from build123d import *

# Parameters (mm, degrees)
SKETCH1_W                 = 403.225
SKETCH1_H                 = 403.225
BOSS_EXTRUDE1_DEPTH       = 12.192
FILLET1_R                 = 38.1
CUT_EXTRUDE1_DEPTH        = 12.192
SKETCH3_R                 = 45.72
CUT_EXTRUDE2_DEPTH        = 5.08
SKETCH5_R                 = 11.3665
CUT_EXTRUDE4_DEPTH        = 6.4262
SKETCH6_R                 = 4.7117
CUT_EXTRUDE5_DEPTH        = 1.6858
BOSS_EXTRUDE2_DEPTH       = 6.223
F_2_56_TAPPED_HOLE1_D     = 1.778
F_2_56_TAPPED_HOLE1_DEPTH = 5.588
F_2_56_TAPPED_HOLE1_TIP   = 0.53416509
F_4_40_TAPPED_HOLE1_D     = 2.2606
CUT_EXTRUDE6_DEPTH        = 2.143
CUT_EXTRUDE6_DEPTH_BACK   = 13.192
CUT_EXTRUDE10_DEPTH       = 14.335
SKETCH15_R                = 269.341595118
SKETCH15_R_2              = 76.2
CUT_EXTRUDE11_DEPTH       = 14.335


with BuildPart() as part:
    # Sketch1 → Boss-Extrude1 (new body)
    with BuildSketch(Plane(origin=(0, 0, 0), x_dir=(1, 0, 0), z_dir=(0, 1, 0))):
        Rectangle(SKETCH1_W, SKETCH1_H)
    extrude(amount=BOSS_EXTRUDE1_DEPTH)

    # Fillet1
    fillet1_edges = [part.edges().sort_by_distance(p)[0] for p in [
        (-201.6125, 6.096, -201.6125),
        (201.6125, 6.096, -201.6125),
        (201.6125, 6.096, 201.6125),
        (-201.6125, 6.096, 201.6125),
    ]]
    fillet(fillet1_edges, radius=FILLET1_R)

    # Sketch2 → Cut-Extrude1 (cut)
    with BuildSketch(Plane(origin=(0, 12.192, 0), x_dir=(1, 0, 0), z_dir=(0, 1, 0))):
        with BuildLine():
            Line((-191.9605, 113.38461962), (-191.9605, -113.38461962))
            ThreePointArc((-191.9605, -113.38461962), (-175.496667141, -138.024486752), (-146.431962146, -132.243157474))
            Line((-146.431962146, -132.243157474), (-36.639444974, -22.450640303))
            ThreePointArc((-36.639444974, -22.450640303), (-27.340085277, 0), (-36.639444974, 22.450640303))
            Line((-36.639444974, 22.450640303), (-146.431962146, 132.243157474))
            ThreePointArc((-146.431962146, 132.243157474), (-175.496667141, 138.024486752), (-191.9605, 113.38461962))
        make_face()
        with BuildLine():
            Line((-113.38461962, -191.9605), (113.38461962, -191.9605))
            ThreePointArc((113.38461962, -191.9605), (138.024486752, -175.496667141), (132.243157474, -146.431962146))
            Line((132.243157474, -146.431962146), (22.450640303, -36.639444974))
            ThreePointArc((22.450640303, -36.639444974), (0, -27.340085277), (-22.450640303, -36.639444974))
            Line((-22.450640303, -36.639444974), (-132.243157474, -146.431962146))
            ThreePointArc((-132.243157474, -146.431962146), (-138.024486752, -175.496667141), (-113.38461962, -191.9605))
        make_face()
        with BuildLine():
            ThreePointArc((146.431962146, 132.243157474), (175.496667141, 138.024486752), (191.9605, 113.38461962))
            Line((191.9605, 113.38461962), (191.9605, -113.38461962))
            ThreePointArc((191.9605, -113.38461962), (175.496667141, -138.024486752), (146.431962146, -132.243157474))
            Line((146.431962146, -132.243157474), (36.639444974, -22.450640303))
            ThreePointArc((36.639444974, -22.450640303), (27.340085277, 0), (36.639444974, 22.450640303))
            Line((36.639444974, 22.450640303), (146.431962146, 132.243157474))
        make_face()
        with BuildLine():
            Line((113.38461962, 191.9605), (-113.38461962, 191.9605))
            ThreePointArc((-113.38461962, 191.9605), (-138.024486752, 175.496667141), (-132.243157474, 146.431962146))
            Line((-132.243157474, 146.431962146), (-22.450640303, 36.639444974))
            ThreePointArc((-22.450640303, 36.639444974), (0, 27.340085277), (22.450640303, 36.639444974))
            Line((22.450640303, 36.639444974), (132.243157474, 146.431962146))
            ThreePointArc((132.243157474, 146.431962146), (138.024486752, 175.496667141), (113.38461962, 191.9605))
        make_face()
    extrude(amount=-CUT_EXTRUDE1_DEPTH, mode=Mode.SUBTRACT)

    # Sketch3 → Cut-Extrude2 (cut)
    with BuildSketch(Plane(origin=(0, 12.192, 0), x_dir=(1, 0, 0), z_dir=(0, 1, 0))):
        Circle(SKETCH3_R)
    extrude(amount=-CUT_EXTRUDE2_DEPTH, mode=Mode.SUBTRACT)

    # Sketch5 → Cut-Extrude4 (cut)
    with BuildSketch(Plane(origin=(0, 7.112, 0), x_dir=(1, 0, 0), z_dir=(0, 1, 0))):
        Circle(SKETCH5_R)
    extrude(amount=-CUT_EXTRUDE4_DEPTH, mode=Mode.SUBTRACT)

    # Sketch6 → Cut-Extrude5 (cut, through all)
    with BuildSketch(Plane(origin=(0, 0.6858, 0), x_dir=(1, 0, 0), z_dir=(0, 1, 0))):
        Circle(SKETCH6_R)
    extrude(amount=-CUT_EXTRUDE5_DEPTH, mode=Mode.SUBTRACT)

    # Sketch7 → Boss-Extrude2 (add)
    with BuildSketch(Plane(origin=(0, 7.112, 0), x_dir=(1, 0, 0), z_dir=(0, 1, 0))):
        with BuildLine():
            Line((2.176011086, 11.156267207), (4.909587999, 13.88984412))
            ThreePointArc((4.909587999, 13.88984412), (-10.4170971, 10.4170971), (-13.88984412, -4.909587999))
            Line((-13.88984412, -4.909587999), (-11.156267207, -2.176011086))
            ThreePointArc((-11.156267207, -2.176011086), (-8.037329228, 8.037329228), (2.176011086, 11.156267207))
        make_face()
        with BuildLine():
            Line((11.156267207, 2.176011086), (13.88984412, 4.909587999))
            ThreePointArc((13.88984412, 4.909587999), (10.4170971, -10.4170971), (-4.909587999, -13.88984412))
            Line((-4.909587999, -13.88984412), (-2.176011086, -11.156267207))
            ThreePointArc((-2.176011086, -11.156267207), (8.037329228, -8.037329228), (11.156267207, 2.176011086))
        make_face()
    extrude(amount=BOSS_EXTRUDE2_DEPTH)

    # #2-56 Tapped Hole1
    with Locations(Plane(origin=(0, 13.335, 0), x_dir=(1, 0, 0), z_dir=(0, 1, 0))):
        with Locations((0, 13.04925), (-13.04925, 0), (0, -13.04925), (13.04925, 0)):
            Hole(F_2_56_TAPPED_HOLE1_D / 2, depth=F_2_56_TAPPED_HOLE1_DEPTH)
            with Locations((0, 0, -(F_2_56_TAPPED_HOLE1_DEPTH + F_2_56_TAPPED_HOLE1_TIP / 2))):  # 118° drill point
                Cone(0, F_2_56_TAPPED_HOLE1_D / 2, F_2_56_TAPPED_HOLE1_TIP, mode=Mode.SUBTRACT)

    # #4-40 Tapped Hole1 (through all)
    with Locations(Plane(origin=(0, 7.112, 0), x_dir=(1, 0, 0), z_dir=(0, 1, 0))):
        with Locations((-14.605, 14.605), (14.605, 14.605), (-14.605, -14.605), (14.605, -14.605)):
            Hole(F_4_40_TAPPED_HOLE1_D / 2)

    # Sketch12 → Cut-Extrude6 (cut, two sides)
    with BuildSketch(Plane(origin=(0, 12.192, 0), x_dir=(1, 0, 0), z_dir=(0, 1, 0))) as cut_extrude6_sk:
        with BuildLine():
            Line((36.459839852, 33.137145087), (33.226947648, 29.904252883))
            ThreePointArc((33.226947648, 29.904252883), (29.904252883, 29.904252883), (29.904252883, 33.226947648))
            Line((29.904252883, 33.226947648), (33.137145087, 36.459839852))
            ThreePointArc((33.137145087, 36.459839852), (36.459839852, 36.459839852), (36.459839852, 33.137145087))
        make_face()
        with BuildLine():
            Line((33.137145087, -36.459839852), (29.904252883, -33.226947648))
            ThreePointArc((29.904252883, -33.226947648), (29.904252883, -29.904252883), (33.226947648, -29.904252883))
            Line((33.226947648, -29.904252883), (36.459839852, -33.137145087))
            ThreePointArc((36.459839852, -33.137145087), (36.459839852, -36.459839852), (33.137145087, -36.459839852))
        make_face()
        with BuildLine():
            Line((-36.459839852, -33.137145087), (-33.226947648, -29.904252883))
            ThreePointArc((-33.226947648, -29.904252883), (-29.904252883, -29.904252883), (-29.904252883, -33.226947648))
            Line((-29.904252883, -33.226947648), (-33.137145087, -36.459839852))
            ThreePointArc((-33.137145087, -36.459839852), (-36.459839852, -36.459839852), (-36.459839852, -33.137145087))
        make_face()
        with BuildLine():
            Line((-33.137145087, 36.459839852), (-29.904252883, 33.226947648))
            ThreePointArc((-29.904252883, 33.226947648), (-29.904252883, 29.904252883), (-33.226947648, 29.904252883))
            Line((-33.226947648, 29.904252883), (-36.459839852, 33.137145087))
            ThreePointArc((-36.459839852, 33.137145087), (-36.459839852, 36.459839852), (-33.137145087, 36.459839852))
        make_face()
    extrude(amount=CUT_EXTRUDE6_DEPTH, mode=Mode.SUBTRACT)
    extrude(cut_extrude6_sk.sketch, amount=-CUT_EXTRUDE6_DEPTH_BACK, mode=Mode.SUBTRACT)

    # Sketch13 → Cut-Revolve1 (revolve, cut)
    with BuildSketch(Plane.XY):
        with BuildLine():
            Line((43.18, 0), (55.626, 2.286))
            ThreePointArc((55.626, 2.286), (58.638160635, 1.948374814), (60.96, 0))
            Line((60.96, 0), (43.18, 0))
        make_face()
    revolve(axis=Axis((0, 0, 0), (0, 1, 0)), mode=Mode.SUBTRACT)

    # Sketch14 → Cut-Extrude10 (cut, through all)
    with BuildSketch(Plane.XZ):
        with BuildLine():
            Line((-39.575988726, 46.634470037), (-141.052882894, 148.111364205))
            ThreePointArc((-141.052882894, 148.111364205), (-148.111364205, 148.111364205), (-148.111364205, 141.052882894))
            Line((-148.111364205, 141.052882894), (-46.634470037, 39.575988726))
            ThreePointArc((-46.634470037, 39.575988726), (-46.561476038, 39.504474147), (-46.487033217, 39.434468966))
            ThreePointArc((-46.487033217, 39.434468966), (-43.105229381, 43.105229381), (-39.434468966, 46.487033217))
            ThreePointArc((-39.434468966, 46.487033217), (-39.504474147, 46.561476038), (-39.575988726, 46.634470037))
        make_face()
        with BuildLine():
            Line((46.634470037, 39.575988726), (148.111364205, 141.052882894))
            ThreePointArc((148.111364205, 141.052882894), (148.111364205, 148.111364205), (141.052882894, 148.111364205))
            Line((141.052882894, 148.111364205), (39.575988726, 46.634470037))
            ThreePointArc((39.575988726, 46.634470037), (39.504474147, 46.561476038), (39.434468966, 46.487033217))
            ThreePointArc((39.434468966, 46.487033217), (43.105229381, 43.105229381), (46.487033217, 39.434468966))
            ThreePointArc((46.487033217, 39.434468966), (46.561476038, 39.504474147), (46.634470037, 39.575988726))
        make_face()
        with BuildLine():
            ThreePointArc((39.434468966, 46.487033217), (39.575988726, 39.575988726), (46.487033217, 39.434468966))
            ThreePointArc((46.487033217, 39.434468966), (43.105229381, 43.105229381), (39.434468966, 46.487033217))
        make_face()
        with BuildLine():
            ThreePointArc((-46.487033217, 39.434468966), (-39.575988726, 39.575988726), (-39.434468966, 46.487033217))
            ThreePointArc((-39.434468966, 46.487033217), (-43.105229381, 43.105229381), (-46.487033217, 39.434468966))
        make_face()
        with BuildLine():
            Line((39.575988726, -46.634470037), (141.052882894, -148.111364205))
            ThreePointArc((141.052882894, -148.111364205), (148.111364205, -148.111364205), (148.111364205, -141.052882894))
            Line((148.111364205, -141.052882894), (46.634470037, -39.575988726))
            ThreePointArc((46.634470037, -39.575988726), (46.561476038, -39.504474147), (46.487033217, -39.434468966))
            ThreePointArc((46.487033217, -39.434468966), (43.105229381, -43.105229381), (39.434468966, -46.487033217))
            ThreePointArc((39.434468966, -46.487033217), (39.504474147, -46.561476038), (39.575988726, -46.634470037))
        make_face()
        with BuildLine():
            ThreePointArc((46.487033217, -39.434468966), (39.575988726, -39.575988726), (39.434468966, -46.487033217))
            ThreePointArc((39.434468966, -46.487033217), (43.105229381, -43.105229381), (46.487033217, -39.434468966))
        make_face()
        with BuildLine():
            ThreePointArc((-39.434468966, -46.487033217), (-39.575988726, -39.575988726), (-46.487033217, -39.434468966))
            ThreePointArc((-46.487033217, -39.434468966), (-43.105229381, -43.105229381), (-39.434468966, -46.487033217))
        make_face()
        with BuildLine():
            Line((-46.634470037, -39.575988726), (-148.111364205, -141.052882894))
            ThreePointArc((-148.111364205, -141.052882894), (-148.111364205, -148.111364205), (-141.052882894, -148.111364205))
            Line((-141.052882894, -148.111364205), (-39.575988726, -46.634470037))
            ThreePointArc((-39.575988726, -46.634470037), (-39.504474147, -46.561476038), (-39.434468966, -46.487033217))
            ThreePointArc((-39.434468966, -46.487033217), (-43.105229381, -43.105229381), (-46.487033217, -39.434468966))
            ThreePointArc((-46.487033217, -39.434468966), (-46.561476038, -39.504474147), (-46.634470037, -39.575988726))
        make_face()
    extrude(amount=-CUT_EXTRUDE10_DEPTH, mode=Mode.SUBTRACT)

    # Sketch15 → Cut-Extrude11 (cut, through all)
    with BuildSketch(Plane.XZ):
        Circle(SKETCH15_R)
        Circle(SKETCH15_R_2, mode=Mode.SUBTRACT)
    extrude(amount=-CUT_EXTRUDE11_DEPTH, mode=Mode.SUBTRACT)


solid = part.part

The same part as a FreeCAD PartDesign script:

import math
import FreeCAD as App
import Part
import Sketcher
from FreeCAD import Vector
Q = App.Units.Quantity


def edges_at(feature, points):
    """Names of the edges that pass closest to the given points."""
    edges = feature.Shape.Edges
    near = lambda p: min(range(len(edges)), key=lambda i: edges[i].distToShape(Part.Vertex(*p))[0])
    return sorted({f"Edge{near(p) + 1}" for p in points})


def add_polygon(sketch, points):
    """Adds a closed chain of lines whose ends are joined by coincident constraints."""
    first, n = sketch.GeometryCount, len(points)
    for a, b in zip(points, points[1:] + points[:1]):
        sketch.addGeometry(Part.LineSegment(App.Vector(*a, 0), App.Vector(*b, 0)), False)
    for i in range(n):
        sketch.addConstraint(Sketcher.Constraint("Coincident", first + i, 2, first + (i + 1) % n, 1))

doc = App.newDocument("Part")
body = doc.addObject("PartDesign::Body", "Body")

sketch1 = doc.addObject("Sketcher::SketchObject", "Sketch")
body.addObject(sketch1)
sketch1.AttachmentSupport = (doc.XZ_Plane, [""])
sketch1.MapMode = "FlatFace"
add_polygon(sketch1, [(-202, -202), (-202, 202), (202, 202), (202, -202)])
sketch1.addConstraint([
    Sketcher.Constraint("Vertical", 0),
    Sketcher.Constraint("Horizontal", 1),
    Sketcher.Constraint("Vertical", 2),
    Sketcher.Constraint("Horizontal", 3),
    Sketcher.Constraint("Symmetric", 0, 2, 2, 2, -1, 1),
    Sketcher.Constraint("Equal", 3, 0),
    Sketcher.Constraint("DistanceX", 1, 1, 1, 2, Q("15.875 in")),
])
pad1 = doc.addObject("PartDesign::Pad", "Pad")
body.addObject(pad1)
pad1.Profile = sketch1
pad1.Length = Q("0.48 in")
pad1.Reversed = True
doc.recompute()

fillet = doc.addObject("PartDesign::Fillet", "Fillet")
body.addObject(fillet)
fillet.Base = (pad1, edges_at(pad1, [
    (-201.613, 6.096, -201.613),
    (201.613, 6.096, -201.613),
    (201.613, 6.096, 201.613),
    (-201.613, 6.096, 201.613),
]))
fillet.Radius = Q("1.5 in")

sketch2 = doc.addObject("Sketcher::SketchObject", "Sketch001")
body.addObject(sketch2)
sketch2.AttachmentSupport = (doc.XZ_Plane, [""])
sketch2.MapMode = "FlatFace"
sketch2.AttachmentOffset = App.Placement(Vector(0, 0, -0.48 * 25.4), App.Rotation())
sketch2.addGeometry([
    Part.LineSegment(Vector(-192, -113, 0), Vector(-192, 113, 0)),
    Part.ArcOfCircle(Part.Circle(Vector(-165, 113, 0), Vector(0, 0, 1), 27), math.radians(45), math.radians(180)),
    Part.LineSegment(Vector(-146, 132, 0), Vector(-37, 22, 0)),
    Part.ArcOfCircle(Part.Circle(Vector(-59, 0, 0), Vector(0, 0, 1), 32), math.radians(-45), math.radians(45)),
    Part.LineSegment(Vector(-37, -22, 0), Vector(-146, -132, 0)),
    Part.ArcOfCircle(Part.Circle(Vector(-165, -113, 0), Vector(0, 0, 1), 27), math.radians(180), math.radians(315)),
    Part.LineSegment(Vector(-113, 192, 0), Vector(113, 192, 0)),
    Part.ArcOfCircle(Part.Circle(Vector(113, 165, 0), Vector(0, 0, 1), 27), math.radians(-45), math.radians(90)),
    Part.LineSegment(Vector(132, 146, 0), Vector(22, 37, 0)),
    Part.ArcOfCircle(Part.Circle(Vector(0, 59, 0), Vector(0, 0, 1), 32), math.radians(-135), math.radians(-45)),
    Part.LineSegment(Vector(-22, 37, 0), Vector(-132, 146, 0)),
    Part.ArcOfCircle(Part.Circle(Vector(-113, 165, 0), Vector(0, 0, 1), 27), math.radians(90), math.radians(225)),
    Part.ArcOfCircle(Part.Circle(Vector(165, -113, 0), Vector(0, 0, 1), 27), math.radians(-135), math.radians(0)),
    Part.LineSegment(Vector(146, -132, 0), Vector(37, -22, 0)),
    Part.ArcOfCircle(Part.Circle(Vector(59, 0, 0), Vector(0, 0, 1), 32), math.radians(135), math.radians(225)),
    Part.LineSegment(Vector(37, 22, 0), Vector(146, 132, 0)),
    Part.ArcOfCircle(Part.Circle(Vector(165, 113, 0), Vector(0, 0, 1), 27), math.radians(0), math.radians(135)),
    Part.LineSegment(Vector(192, 113, 0), Vector(192, -113, 0)),
    Part.LineSegment(Vector(113, -192, 0), Vector(-113, -192, 0)),
    Part.ArcOfCircle(Part.Circle(Vector(-113, -165, 0), Vector(0, 0, 1), 27), math.radians(135), math.radians(270)),
    Part.LineSegment(Vector(-132, -146, 0), Vector(-22, -37, 0)),
    Part.ArcOfCircle(Part.Circle(Vector(0, -59, 0), Vector(0, 0, 1), 32), math.radians(45), math.radians(135)),
    Part.LineSegment(Vector(22, -37, 0), Vector(132, -146, 0)),
    Part.ArcOfCircle(Part.Circle(Vector(113, -165, 0), Vector(0, 0, 1), 27), math.radians(-90), math.radians(45)),
], False)
sketch2.addConstraint([
    Sketcher.Constraint("Tangent", 0, 2, 1, 2),
    Sketcher.Constraint("Tangent", 1, 1, 2, 1),
    Sketcher.Constraint("Tangent", 2, 2, 3, 2),
    Sketcher.Constraint("Tangent", 3, 1, 4, 1),
    Sketcher.Constraint("Tangent", 4, 2, 5, 2),
    Sketcher.Constraint("Tangent", 5, 1, 0, 1),
    Sketcher.Constraint("Tangent", 6, 2, 7, 2),
    Sketcher.Constraint("Tangent", 7, 1, 8, 1),
    Sketcher.Constraint("Tangent", 8, 2, 9, 2),
    Sketcher.Constraint("Tangent", 9, 1, 10, 1),
    Sketcher.Constraint("Tangent", 10, 2, 11, 2),
    Sketcher.Constraint("Tangent", 11, 1, 6, 1),
    Sketcher.Constraint("Tangent", 12, 1, 13, 1),
    Sketcher.Constraint("Tangent", 13, 2, 14, 2),
    Sketcher.Constraint("Tangent", 14, 1, 15, 1),
    Sketcher.Constraint("Tangent", 15, 2, 16, 2),
    Sketcher.Constraint("Tangent", 16, 1, 17, 1),
    Sketcher.Constraint("Tangent", 17, 2, 12, 2),
    Sketcher.Constraint("Tangent", 18, 2, 19, 2),
    Sketcher.Constraint("Tangent", 19, 1, 20, 1),
    Sketcher.Constraint("Tangent", 20, 2, 21, 2),
    Sketcher.Constraint("Tangent", 21, 1, 22, 1),
    Sketcher.Constraint("Tangent", 22, 2, 23, 2),
    Sketcher.Constraint("Tangent", 23, 1, 18, 1),
    Sketcher.Constraint("Vertical", 0),
    Sketcher.Constraint("Horizontal", 6),
    Sketcher.Constraint("Vertical", 17),
    Sketcher.Constraint("Horizontal", 18),
    Sketcher.Constraint("Equal", 1, 5),
    Sketcher.Constraint("Equal", 5, 7),
    Sketcher.Constraint("Equal", 3, 9),
    Sketcher.Constraint("Equal", 7, 11),
    Sketcher.Constraint("Equal", 11, 12),
    Sketcher.Constraint("Equal", 9, 14),
    Sketcher.Constraint("Equal", 12, 16),
    Sketcher.Constraint("Equal", 16, 19),
    Sketcher.Constraint("Equal", 14, 21),
    Sketcher.Constraint("Equal", 19, 23),
    Sketcher.Constraint("Symmetric", 1, 3, 12, 3, -1, 1),
    Sketcher.Constraint("Symmetric", 3, 3, 14, 3, -1, 1),
    Sketcher.Constraint("Symmetric", 7, 3, 19, 3, -1, 1),
    Sketcher.Constraint("Symmetric", 9, 3, 21, 3, -1, 1),
    Sketcher.Constraint("Symmetric", 8, 2, 9, 1, -2),
    Sketcher.Constraint("Symmetric", 4, 2, 12, 1, -2),
    Sketcher.Constraint("Perpendicular", 2, 4),
    Sketcher.Constraint("Parallel", 4, 8),
    Sketcher.Constraint("Perpendicular", 13, 15),
    Sketcher.Constraint("Perpendicular", 20, 22),
    Sketcher.Constraint("Equal", 18, 0),
    Sketcher.Constraint("Radius", 1, Q("1.05 in")),
    Sketcher.Constraint("Radius", 3, Q("1.25 in")),
    Sketcher.Constraint("DistanceX", 5, 3, 12, 3, Q("13.015 in")),
    Sketcher.Constraint("DistanceY", -1, 1, 7, 3, Q("6.5075 in")),
    Sketcher.Constraint("DistanceX", 6, 1, 6, 2, Q("226.769239 mm")),
])
pocket1 = doc.addObject("PartDesign::Pocket", "Pocket")
body.addObject(pocket1)
pocket1.Profile = sketch2
pocket1.Length = Q("0.48 in")
pocket1.Reversed = True

sketch3 = doc.addObject("Sketcher::SketchObject", "Sketch002")
body.addObject(sketch3)
sketch3.AttachmentSupport = (doc.XZ_Plane, [""])
sketch3.MapMode = "FlatFace"
sketch3.AttachmentOffset = App.Placement(Vector(0, 0, -0.48 * 25.4), App.Rotation())
sketch3.addGeometry(Part.Circle(Vector(0, 0, 0), Vector(0, 0, 1), 46), False)
sketch3.addConstraint([
    Sketcher.Constraint("Coincident", 0, 3, -1, 1),
    Sketcher.Constraint("Diameter", 0, Q("3.6 in")),
])
pocket2 = doc.addObject("PartDesign::Pocket", "Pocket001")
body.addObject(pocket2)
pocket2.Profile = sketch3
pocket2.Length = Q("0.2 in")
pocket2.Reversed = True

sketch4 = doc.addObject("Sketcher::SketchObject", "Sketch003")
body.addObject(sketch4)
sketch4.AttachmentSupport = (doc.XZ_Plane, [""])
sketch4.MapMode = "FlatFace"
sketch4.AttachmentOffset = App.Placement(Vector(0, 0, -0.28 * 25.4), App.Rotation())
sketch4.addGeometry(Part.Circle(Vector(0, 0, 0), Vector(0, 0, 1), 11), False)
sketch4.addConstraint([
    Sketcher.Constraint("Coincident", 0, 3, -1, 1),
    Sketcher.Constraint("Diameter", 0, Q("0.895 in")),
])
pocket3 = doc.addObject("PartDesign::Pocket", "Pocket002")
body.addObject(pocket3)
pocket3.Profile = sketch4
pocket3.Length = Q("0.253 in")
pocket3.Reversed = True

sketch5 = doc.addObject("Sketcher::SketchObject", "Sketch004")
body.addObject(sketch5)
sketch5.AttachmentSupport = (doc.XZ_Plane, [""])
sketch5.MapMode = "FlatFace"
sketch5.AttachmentOffset = App.Placement(Vector(0, 0, -0.027 * 25.4), App.Rotation())
sketch5.addGeometry(Part.Circle(Vector(0, 0, 0), Vector(0, 0, 1), 4.7), False)
sketch5.addConstraint([
    Sketcher.Constraint("Coincident", 0, 3, -1, 1),
    Sketcher.Constraint("Diameter", 0, Q("0.371 in")),
])
pocket4 = doc.addObject("PartDesign::Pocket", "Pocket003")
body.addObject(pocket4)
pocket4.Profile = sketch5
pocket4.Type = "ThroughAll"
pocket4.Reversed = True

sketch6 = doc.addObject("Sketcher::SketchObject", "Sketch005")
body.addObject(sketch6)
sketch6.AttachmentSupport = (doc.XZ_Plane, [""])
sketch6.MapMode = "FlatFace"
sketch6.AttachmentOffset = App.Placement(Vector(0, 0, -0.28 * 25.4), App.Rotation())
sketch6.addGeometry([
    Part.LineSegment(Vector(2.2, -11.2, 0), Vector(4.9, -13.9, 0)),
    Part.ArcOfCircle(Part.Circle(Vector(0, 0, 0), Vector(0, 0, 1), 14.7), math.radians(161), math.radians(289)),
    Part.LineSegment(Vector(-13.9, 4.9, 0), Vector(-11.2, 2.2, 0)),
    Part.ArcOfCircle(Part.Circle(Vector(0, 0, 0), Vector(0, 0, 1), 11.4), math.radians(169), math.radians(281)),
    Part.LineSegment(Vector(13.9, -4.9, 0), Vector(11.2, -2.2, 0)),
    Part.ArcOfCircle(Part.Circle(Vector(0, 0, 0), Vector(0, 0, 1), 11.4), math.radians(-11), math.radians(101)),
    Part.LineSegment(Vector(-2.2, 11.2, 0), Vector(-4.9, 13.9, 0)),
    Part.ArcOfCircle(Part.Circle(Vector(0, 0, 0), Vector(0, 0, 1), 14.7), math.radians(-19), math.radians(109)),
], False)
sketch6.addConstraint([
    Sketcher.Constraint("Coincident", 0, 2, 1, 2),
    Sketcher.Constraint("Coincident", 1, 1, 2, 1),
    Sketcher.Constraint("Coincident", 2, 2, 3, 1),
    Sketcher.Constraint("Coincident", 3, 2, 0, 1),
    Sketcher.Constraint("Coincident", 4, 2, 5, 1),
    Sketcher.Constraint("Coincident", 5, 2, 6, 1),
    Sketcher.Constraint("Coincident", 6, 2, 7, 2),
    Sketcher.Constraint("Coincident", 7, 1, 4, 1),
    Sketcher.Constraint("Coincident", 1, 3, -1, 1),
    Sketcher.Constraint("Coincident", 3, 3, -1, 1),
    Sketcher.Constraint("Coincident", 5, 3, -1, 1),
    Sketcher.Constraint("Coincident", 7, 3, -1, 1),
    Sketcher.Constraint("Equal", 3, 5),
    Sketcher.Constraint("Equal", 1, 7),
    Sketcher.Constraint("Parallel", 0, 2),
    Sketcher.Constraint("Parallel", 2, 4),
    Sketcher.Constraint("Parallel", 4, 6),
    Sketcher.Constraint("Equal", 0, 2),
    Sketcher.Constraint("Equal", 2, 4),
    Sketcher.Constraint("Equal", 4, 6),
    Sketcher.Constraint("Radius", 1, Q("0.58 in")),
    Sketcher.Constraint("Angle", 0, Q("-45 deg")),
    Sketcher.Constraint("Radius", 3, Q("0.4475 in")),
    Sketcher.Constraint("Distance", 0, Q("3.865862 mm")),
])
pad2 = doc.addObject("PartDesign::Pad", "Pad001")
body.addObject(pad2)
pad2.Profile = sketch6
pad2.Length = Q("0.245 in")
pad2.Reversed = True

sketch7 = doc.addObject("Sketcher::SketchObject", "Sketch006")
body.addObject(sketch7)
sketch7.AttachmentSupport = (doc.XZ_Plane, [""])
sketch7.MapMode = "FlatFace"
sketch7.AttachmentOffset = App.Placement(Vector(0, 0, -0.525 * 25.4), App.Rotation())
sketch7.addGeometry([
    Part.Circle(Vector(0, -13, 0), Vector(0, 0, 1), 0.9),
    Part.Circle(Vector(-13, 0, 0), Vector(0, 0, 1), 0.9),
    Part.Circle(Vector(0, 13, 0), Vector(0, 0, 1), 0.9),
    Part.Circle(Vector(13, 0, 0), Vector(0, 0, 1), 0.9),
], False)
sketch7.addConstraint([
    Sketcher.Constraint("Equal", 0, 1),
    Sketcher.Constraint("Equal", 1, 2),
    Sketcher.Constraint("Equal", 2, 3),
    Sketcher.Constraint("Symmetric", 0, 3, 2, 3, -1, 1),
    Sketcher.Constraint("Symmetric", 1, 3, 3, 3, -1, 1),
    Sketcher.Constraint("PointOnObject", 0, 3, -2),
    Sketcher.Constraint("PointOnObject", 1, 3, -1),
    Sketcher.Constraint("Diameter", 0, Q("0.07 in")),
    Sketcher.Constraint("DistanceY", 0, 3, 2, 3, Q("1.0275 in")),
    Sketcher.Constraint("DistanceX", 1, 3, 3, 3, Q("1.0275 in")),
])
doc.recompute()
hole = doc.addObject("PartDesign::Hole", "Hole")
body.addObject(hole)
hole.Profile = sketch7
hole.ThreadType = "None"
hole.Diameter = Q("0.07 in")
hole.DepthType = "Dimension"
hole.Depth = Q("0.22 in")
hole.DrillPoint = "Angled"
hole.DrillPointAngle = 118
hole.Reversed = True

sketch8 = doc.addObject("Sketcher::SketchObject", "Sketch007")
body.addObject(sketch8)
sketch8.AttachmentSupport = (doc.XZ_Plane, [""])
sketch8.MapMode = "FlatFace"
sketch8.AttachmentOffset = App.Placement(Vector(0, 0, -0.28 * 25.4), App.Rotation())
sketch8.addGeometry([
    Part.Circle(Vector(-14.6, -14.6, 0), Vector(0, 0, 1), 1.1),
    Part.Circle(Vector(14.6, -14.6, 0), Vector(0, 0, 1), 1.1),
    Part.Circle(Vector(-14.6, 14.6, 0), Vector(0, 0, 1), 1.1),
    Part.Circle(Vector(14.6, 14.6, 0), Vector(0, 0, 1), 1.1),
], False)
sketch8.addConstraint([
    Sketcher.Constraint("Equal", 0, 1),
    Sketcher.Constraint("Equal", 1, 2),
    Sketcher.Constraint("Equal", 2, 3),
    Sketcher.Constraint("Symmetric", 1, 3, 2, 3, -1, 1),
    Sketcher.Constraint("Symmetric", 0, 3, 3, 3, -1, 1),
    Sketcher.Constraint("Symmetric", 0, 3, 1, 3, -2),
    Sketcher.Constraint("Diameter", 0, Q("0.089 in")),
    Sketcher.Constraint("DistanceX", 0, 3, 1, 3, Q("1.15 in")),
    Sketcher.Constraint("DistanceY", 0, 3, 2, 3, Q("1.15 in")),
])
doc.recompute()
hole2 = doc.addObject("PartDesign::Hole", "Hole001")
body.addObject(hole2)
hole2.Profile = sketch8
hole2.ThreadType = "None"
hole2.Diameter = Q("0.089 in")
hole2.DepthType = "ThroughAll"
hole2.Reversed = True

sketch9 = doc.addObject("Sketcher::SketchObject", "Sketch008")
body.addObject(sketch9)
sketch9.AttachmentSupport = (doc.XZ_Plane, [""])
sketch9.MapMode = "FlatFace"
sketch9.AttachmentOffset = App.Placement(Vector(0, 0, -0.48 * 25.4), App.Rotation())
sketch9.addGeometry([
    Part.LineSegment(Vector(33.2, -29.9, 0), Vector(36.5, -33.1, 0)),
    Part.ArcOfCircle(Part.Circle(Vector(34.8, -34.8, 0), Vector(0, 0, 1), 2.3), math.radians(-135), math.radians(45)),
    Part.LineSegment(Vector(33.1, -36.5, 0), Vector(29.9, -33.2, 0)),
    Part.ArcOfCircle(Part.Circle(Vector(31.6, -31.6, 0), Vector(0, 0, 1), 2.3), math.radians(45), math.radians(225)),
    Part.LineSegment(Vector(29.9, 33.2, 0), Vector(33.1, 36.5, 0)),
    Part.ArcOfCircle(Part.Circle(Vector(34.8, 34.8, 0), Vector(0, 0, 1), 2.3), math.radians(-45), math.radians(135)),
    Part.LineSegment(Vector(36.5, 33.1, 0), Vector(33.2, 29.9, 0)),
    Part.ArcOfCircle(Part.Circle(Vector(31.6, 31.6, 0), Vector(0, 0, 1), 2.3), math.radians(135), math.radians(315)),
    Part.LineSegment(Vector(-33.2, 29.9, 0), Vector(-36.5, 33.1, 0)),
    Part.ArcOfCircle(Part.Circle(Vector(-34.8, 34.8, 0), Vector(0, 0, 1), 2.3), math.radians(45), math.radians(225)),
    Part.LineSegment(Vector(-33.1, 36.5, 0), Vector(-29.9, 33.2, 0)),
    Part.ArcOfCircle(Part.Circle(Vector(-31.6, 31.6, 0), Vector(0, 0, 1), 2.3), math.radians(-135), math.radians(45)),
    Part.LineSegment(Vector(-29.9, -33.2, 0), Vector(-33.1, -36.5, 0)),
    Part.ArcOfCircle(Part.Circle(Vector(-34.8, -34.8, 0), Vector(0, 0, 1), 2.3), math.radians(135), math.radians(315)),
    Part.LineSegment(Vector(-36.5, -33.1, 0), Vector(-33.2, -29.9, 0)),
    Part.ArcOfCircle(Part.Circle(Vector(-31.6, -31.6, 0), Vector(0, 0, 1), 2.3), math.radians(-45), math.radians(135)),
], False)
sketch9.addConstraint([
    Sketcher.Constraint("Tangent", 0, 2, 1, 2),
    Sketcher.Constraint("Tangent", 1, 1, 2, 1),
    Sketcher.Constraint("Tangent", 2, 2, 3, 2),
    Sketcher.Constraint("Tangent", 3, 1, 0, 1),
    Sketcher.Constraint("Tangent", 4, 2, 5, 2),
    Sketcher.Constraint("Tangent", 5, 1, 6, 1),
    Sketcher.Constraint("Tangent", 6, 2, 7, 2),
    Sketcher.Constraint("Tangent", 7, 1, 4, 1),
    Sketcher.Constraint("Tangent", 8, 2, 9, 2),
    Sketcher.Constraint("Tangent", 9, 1, 10, 1),
    Sketcher.Constraint("Tangent", 10, 2, 11, 2),
    Sketcher.Constraint("Tangent", 11, 1, 8, 1),
    Sketcher.Constraint("Tangent", 12, 2, 13, 2),
    Sketcher.Constraint("Tangent", 13, 1, 14, 1),
    Sketcher.Constraint("Tangent", 14, 2, 15, 2),
    Sketcher.Constraint("Tangent", 15, 1, 12, 1),
    Sketcher.Constraint("Equal", 1, 3),
    Sketcher.Constraint("Equal", 3, 5),
    Sketcher.Constraint("Equal", 5, 7),
    Sketcher.Constraint("Equal", 7, 9),
    Sketcher.Constraint("Equal", 9, 11),
    Sketcher.Constraint("Equal", 11, 13),
    Sketcher.Constraint("Equal", 13, 15),
    Sketcher.Constraint("Symmetric", 1, 3, 9, 3, -1, 1),
    Sketcher.Constraint("Symmetric", 3, 3, 11, 3, -1, 1),
    Sketcher.Constraint("Symmetric", 5, 3, 13, 3, -1, 1),
    Sketcher.Constraint("Symmetric", 7, 3, 15, 3, -1, 1),
    Sketcher.Constraint("Symmetric", 5, 3, 9, 3, -2),
    Sketcher.Constraint("Symmetric", 7, 3, 11, 3, -2),
    Sketcher.Constraint("Perpendicular", 2, 4),
    Sketcher.Constraint("Radius", 1, Q("0.0925 in")),
    Sketcher.Constraint("Distance", 0, Q("0.18 in")),
    Sketcher.Constraint("DistanceX", -1, 1, 3, 3, Q("31.5656 mm")),
    Sketcher.Constraint("DistanceY", 3, 3, -1, 1, Q("31.5656 mm")),
])
pocket5 = doc.addObject("PartDesign::Pocket", "Pocket004")
body.addObject(pocket5)
pocket5.Profile = sketch9
pocket5.Type = "ThroughAll"
pocket5.Midplane = True

sketch10 = doc.addObject("Sketcher::SketchObject", "Sketch009")
body.addObject(sketch10)
sketch10.AttachmentSupport = (doc.XY_Plane, [""])
sketch10.MapMode = "FlatFace"
sketch10.addGeometry([
    Part.LineSegment(Vector(56, 2, 0), Vector(43, 0, 0)),
    Part.LineSegment(Vector(43, 0, 0), Vector(61, 0, 0)),
    Part.ArcOfCircle(Part.Circle(Vector(57, -3, 0), Vector(0, 0, 1), 5), math.radians(33), math.radians(100)),
], False)
sketch10.addConstraint([
    Sketcher.Constraint("Coincident", 0, 2, 1, 1),
    Sketcher.Constraint("Coincident", 1, 2, 2, 1),
    Sketcher.Constraint("Tangent", 2, 2, 0, 1),
    Sketcher.Constraint("Horizontal", 1),
    Sketcher.Constraint("PointOnObject", 0, 2, -1),
    Sketcher.Constraint("DistanceX", 1, 1, 1, 2, Q("0.7 in")),
    Sketcher.Constraint("DistanceX", -1, 1, 0, 2, Q("1.7 in")),
    Sketcher.Constraint("DistanceX", -1, 1, 2, 2, Q("2.19 in")),
    Sketcher.Constraint("DistanceY", -1, 1, 2, 2, Q("0.09 in")),
])
groove = doc.addObject("PartDesign::Groove", "Groove")
body.addObject(groove)
groove.Profile = sketch10
groove.ReferenceAxis = (sketch10, ["V_Axis"])
groove.Angle = 360

sketch11 = doc.addObject("Sketcher::SketchObject", "Sketch010")
body.addObject(sketch11)
sketch11.AttachmentSupport = (doc.XZ_Plane, [""])
sketch11.MapMode = "FlatFace"
sketch11.addGeometry([
    Part.LineSegment(Vector(-39.58, 46.63, 0), Vector(-141.05, 148.11, 0)),
    Part.ArcOfCircle(Part.Circle(Vector(-144.58, 144.58, 0), Vector(0, 0, 1), 4.99), math.radians(45), math.radians(225)),
    Part.LineSegment(Vector(-148.11, 141.05, 0), Vector(-46.63, 39.58, 0)),
    Part.ArcOfCircle(Part.Circle(Vector(-43.11, 43.11, 0), Vector(0, 0, 1), 4.99), math.radians(-135), math.radians(-132.65)),
    Part.ArcOfCircle(Part.Circle(Vector(-43.11, 43.11, 0), Vector(0, 0, 1), 4.99), math.radians(-133), math.radians(43)),
    Part.ArcOfCircle(Part.Circle(Vector(-43.11, 43.11, 0), Vector(0, 0, 1), 4.99), math.radians(42.65), math.radians(45)),
    Part.LineSegment(Vector(46.63, 39.58, 0), Vector(148.11, 141.05, 0)),
    Part.ArcOfCircle(Part.Circle(Vector(144.58, 144.58, 0), Vector(0, 0, 1), 4.99), math.radians(-45), math.radians(135)),
    Part.LineSegment(Vector(141.05, 148.11, 0), Vector(39.58, 46.63, 0)),
    Part.ArcOfCircle(Part.Circle(Vector(43.11, 43.11, 0), Vector(0, 0, 1), 4.99), math.radians(135), math.radians(137.35)),
    Part.ArcOfCircle(Part.Circle(Vector(43.11, 43.11, 0), Vector(0, 0, 1), 4.99), math.radians(137), math.radians(313)),
    Part.ArcOfCircle(Part.Circle(Vector(43.11, 43.11, 0), Vector(0, 0, 1), 4.99), math.radians(-47.35), math.radians(-45)),
    Part.LineSegment(Vector(39.58, -46.63, 0), Vector(141.05, -148.11, 0)),
    Part.ArcOfCircle(Part.Circle(Vector(144.58, -144.58, 0), Vector(0, 0, 1), 4.99), math.radians(-135), math.radians(45)),
    Part.LineSegment(Vector(148.11, -141.05, 0), Vector(46.63, -39.58, 0)),
    Part.ArcOfCircle(Part.Circle(Vector(43.11, -43.11, 0), Vector(0, 0, 1), 4.99), math.radians(45), math.radians(47.35)),
    Part.ArcOfCircle(Part.Circle(Vector(43.11, -43.11, 0), Vector(0, 0, 1), 4.99), math.radians(47), math.radians(223)),
    Part.ArcOfCircle(Part.Circle(Vector(43.11, -43.11, 0), Vector(0, 0, 1), 4.99), math.radians(-137.35), math.radians(-135)),
    Part.ArcOfCircle(Part.Circle(Vector(-43.11, -43.11, 0), Vector(0, 0, 1), 4.99), math.radians(-43), math.radians(133)),
    Part.ArcOfCircle(Part.Circle(Vector(-43.11, -43.11, 0), Vector(0, 0, 1), 4.99), math.radians(132.65), math.radians(135)),
    Part.LineSegment(Vector(-46.63, -39.58, 0), Vector(-148.11, -141.05, 0)),
    Part.ArcOfCircle(Part.Circle(Vector(-144.58, -144.58, 0), Vector(0, 0, 1), 4.99), math.radians(135), math.radians(315)),
    Part.LineSegment(Vector(-141.05, -148.11, 0), Vector(-39.58, -46.63, 0)),
    Part.ArcOfCircle(Part.Circle(Vector(-43.11, -43.11, 0), Vector(0, 0, 1), 4.99), math.radians(-45), math.radians(-42.65)),
], False)
sketch11.addConstraint([
    Sketcher.Constraint("Tangent", 0, 2, 1, 1),
    Sketcher.Constraint("Tangent", 1, 2, 2, 1),
    Sketcher.Constraint("Tangent", 2, 2, 3, 1),
    Sketcher.Constraint("Tangent", 3, 2, 4, 1),
    Sketcher.Constraint("Tangent", 4, 2, 5, 1),
    Sketcher.Constraint("Tangent", 5, 2, 0, 1),
    Sketcher.Constraint("Tangent", 6, 2, 7, 1),
    Sketcher.Constraint("Tangent", 7, 2, 8, 1),
    Sketcher.Constraint("Tangent", 8, 2, 9, 1),
    Sketcher.Constraint("Tangent", 9, 2, 10, 1),
    Sketcher.Constraint("Tangent", 10, 2, 11, 1),
    Sketcher.Constraint("Tangent", 11, 2, 6, 1),
    Sketcher.Constraint("Tangent", 12, 2, 13, 1),
    Sketcher.Constraint("Tangent", 13, 2, 14, 1),
    Sketcher.Constraint("Tangent", 14, 2, 15, 1),
    Sketcher.Constraint("Tangent", 15, 2, 16, 1),
    Sketcher.Constraint("Tangent", 16, 2, 17, 1),
    Sketcher.Constraint("Tangent", 17, 2, 12, 1),
    Sketcher.Constraint("Tangent", 18, 2, 19, 1),
    Sketcher.Constraint("Tangent", 19, 2, 20, 1),
    Sketcher.Constraint("Tangent", 20, 2, 21, 1),
    Sketcher.Constraint("Tangent", 21, 2, 22, 1),
    Sketcher.Constraint("Tangent", 22, 2, 23, 1),
    Sketcher.Constraint("Tangent", 23, 2, 18, 1),
    Sketcher.Constraint("Coincident", 5, 3, 3, 3),
    Sketcher.Constraint("Coincident", 11, 3, 9, 3),
    Sketcher.Constraint("Coincident", 17, 3, 15, 3),
    Sketcher.Constraint("Equal", 1, 3),
    Sketcher.Constraint("Equal", 5, 7),
    Sketcher.Constraint("Equal", 7, 9),
    Sketcher.Constraint("Equal", 11, 13),
    Sketcher.Constraint("Equal", 13, 15),
    Sketcher.Constraint("Equal", 17, 18),
    Sketcher.Constraint("Equal", 18, 19),
    Sketcher.Constraint("Equal", 19, 21),
    Sketcher.Constraint("Equal", 21, 23),
    Sketcher.Constraint("Symmetric", 1, 3, 13, 3, -1, 1),
    Sketcher.Constraint("Symmetric", 3, 3, 15, 3, -1, 1),
    Sketcher.Constraint("Symmetric", 9, 3, 18, 3, -1, 1),
    Sketcher.Constraint("Symmetric", 7, 3, 21, 3, -1, 1),
    Sketcher.Constraint("Symmetric", 1, 3, 7, 3, -2),
    Sketcher.Constraint("Symmetric", 3, 3, 9, 3, -2),
    Sketcher.Constraint("Perpendicular", 2, 6),
    Sketcher.Constraint("Horizontal", 4, 2, 9, 2),
    Sketcher.Constraint("Horizontal", 3, 2, 10, 2),
    Sketcher.Constraint("Horizontal", 15, 2, 18, 2),
    Sketcher.Constraint("Horizontal", 16, 2, 23, 2),
    Sketcher.Constraint("Vertical", 10, 2, 15, 2),
    Sketcher.Constraint("Vertical", 9, 2, 16, 2),
    Sketcher.Constraint("Radius", 1, Q("0.1965 in")),
    Sketcher.Constraint("Distance", 0, Q("5.65 in")),
    Sketcher.Constraint("DistanceY", 19, 3, 3, 2, Q("82.539698 mm")),
    Sketcher.Constraint("DistanceX", 2, 2, 4, 2, Q("7.200001 mm")),
    Sketcher.Constraint("DistanceY", 3, 2, 5, 2, Q("7.200001 mm")),
    Sketcher.Constraint("DistanceX", 3, 3, -1, 1, Q("43.105229 mm")),
])
pocket6 = doc.addObject("PartDesign::Pocket", "Pocket005")
body.addObject(pocket6)
pocket6.Profile = sketch11
pocket6.Type = "ThroughAll"

sketch12 = doc.addObject("Sketcher::SketchObject", "Sketch011")
body.addObject(sketch12)
sketch12.AttachmentSupport = (doc.XZ_Plane, [""])
sketch12.MapMode = "FlatFace"
sketch12.addGeometry([
    Part.Circle(Vector(0, 0, 0), Vector(0, 0, 1), 269),
    Part.Circle(Vector(0, 0, 0), Vector(0, 0, 1), 76),
], False)
sketch12.addConstraint([
    Sketcher.Constraint("Coincident", 0, 3, -1, 1),
    Sketcher.Constraint("Coincident", 1, 3, -1, 1),
    Sketcher.Constraint("Diameter", 1, Q("6 in")),
    Sketcher.Constraint("Diameter", 0, Q("538.68319 mm")),
])
pocket7 = doc.addObject("PartDesign::Pocket", "Pocket006")
body.addObject(pocket7)
pocket7.Profile = sketch12
pocket7.Type = "ThroughAll"

doc.recompute()
